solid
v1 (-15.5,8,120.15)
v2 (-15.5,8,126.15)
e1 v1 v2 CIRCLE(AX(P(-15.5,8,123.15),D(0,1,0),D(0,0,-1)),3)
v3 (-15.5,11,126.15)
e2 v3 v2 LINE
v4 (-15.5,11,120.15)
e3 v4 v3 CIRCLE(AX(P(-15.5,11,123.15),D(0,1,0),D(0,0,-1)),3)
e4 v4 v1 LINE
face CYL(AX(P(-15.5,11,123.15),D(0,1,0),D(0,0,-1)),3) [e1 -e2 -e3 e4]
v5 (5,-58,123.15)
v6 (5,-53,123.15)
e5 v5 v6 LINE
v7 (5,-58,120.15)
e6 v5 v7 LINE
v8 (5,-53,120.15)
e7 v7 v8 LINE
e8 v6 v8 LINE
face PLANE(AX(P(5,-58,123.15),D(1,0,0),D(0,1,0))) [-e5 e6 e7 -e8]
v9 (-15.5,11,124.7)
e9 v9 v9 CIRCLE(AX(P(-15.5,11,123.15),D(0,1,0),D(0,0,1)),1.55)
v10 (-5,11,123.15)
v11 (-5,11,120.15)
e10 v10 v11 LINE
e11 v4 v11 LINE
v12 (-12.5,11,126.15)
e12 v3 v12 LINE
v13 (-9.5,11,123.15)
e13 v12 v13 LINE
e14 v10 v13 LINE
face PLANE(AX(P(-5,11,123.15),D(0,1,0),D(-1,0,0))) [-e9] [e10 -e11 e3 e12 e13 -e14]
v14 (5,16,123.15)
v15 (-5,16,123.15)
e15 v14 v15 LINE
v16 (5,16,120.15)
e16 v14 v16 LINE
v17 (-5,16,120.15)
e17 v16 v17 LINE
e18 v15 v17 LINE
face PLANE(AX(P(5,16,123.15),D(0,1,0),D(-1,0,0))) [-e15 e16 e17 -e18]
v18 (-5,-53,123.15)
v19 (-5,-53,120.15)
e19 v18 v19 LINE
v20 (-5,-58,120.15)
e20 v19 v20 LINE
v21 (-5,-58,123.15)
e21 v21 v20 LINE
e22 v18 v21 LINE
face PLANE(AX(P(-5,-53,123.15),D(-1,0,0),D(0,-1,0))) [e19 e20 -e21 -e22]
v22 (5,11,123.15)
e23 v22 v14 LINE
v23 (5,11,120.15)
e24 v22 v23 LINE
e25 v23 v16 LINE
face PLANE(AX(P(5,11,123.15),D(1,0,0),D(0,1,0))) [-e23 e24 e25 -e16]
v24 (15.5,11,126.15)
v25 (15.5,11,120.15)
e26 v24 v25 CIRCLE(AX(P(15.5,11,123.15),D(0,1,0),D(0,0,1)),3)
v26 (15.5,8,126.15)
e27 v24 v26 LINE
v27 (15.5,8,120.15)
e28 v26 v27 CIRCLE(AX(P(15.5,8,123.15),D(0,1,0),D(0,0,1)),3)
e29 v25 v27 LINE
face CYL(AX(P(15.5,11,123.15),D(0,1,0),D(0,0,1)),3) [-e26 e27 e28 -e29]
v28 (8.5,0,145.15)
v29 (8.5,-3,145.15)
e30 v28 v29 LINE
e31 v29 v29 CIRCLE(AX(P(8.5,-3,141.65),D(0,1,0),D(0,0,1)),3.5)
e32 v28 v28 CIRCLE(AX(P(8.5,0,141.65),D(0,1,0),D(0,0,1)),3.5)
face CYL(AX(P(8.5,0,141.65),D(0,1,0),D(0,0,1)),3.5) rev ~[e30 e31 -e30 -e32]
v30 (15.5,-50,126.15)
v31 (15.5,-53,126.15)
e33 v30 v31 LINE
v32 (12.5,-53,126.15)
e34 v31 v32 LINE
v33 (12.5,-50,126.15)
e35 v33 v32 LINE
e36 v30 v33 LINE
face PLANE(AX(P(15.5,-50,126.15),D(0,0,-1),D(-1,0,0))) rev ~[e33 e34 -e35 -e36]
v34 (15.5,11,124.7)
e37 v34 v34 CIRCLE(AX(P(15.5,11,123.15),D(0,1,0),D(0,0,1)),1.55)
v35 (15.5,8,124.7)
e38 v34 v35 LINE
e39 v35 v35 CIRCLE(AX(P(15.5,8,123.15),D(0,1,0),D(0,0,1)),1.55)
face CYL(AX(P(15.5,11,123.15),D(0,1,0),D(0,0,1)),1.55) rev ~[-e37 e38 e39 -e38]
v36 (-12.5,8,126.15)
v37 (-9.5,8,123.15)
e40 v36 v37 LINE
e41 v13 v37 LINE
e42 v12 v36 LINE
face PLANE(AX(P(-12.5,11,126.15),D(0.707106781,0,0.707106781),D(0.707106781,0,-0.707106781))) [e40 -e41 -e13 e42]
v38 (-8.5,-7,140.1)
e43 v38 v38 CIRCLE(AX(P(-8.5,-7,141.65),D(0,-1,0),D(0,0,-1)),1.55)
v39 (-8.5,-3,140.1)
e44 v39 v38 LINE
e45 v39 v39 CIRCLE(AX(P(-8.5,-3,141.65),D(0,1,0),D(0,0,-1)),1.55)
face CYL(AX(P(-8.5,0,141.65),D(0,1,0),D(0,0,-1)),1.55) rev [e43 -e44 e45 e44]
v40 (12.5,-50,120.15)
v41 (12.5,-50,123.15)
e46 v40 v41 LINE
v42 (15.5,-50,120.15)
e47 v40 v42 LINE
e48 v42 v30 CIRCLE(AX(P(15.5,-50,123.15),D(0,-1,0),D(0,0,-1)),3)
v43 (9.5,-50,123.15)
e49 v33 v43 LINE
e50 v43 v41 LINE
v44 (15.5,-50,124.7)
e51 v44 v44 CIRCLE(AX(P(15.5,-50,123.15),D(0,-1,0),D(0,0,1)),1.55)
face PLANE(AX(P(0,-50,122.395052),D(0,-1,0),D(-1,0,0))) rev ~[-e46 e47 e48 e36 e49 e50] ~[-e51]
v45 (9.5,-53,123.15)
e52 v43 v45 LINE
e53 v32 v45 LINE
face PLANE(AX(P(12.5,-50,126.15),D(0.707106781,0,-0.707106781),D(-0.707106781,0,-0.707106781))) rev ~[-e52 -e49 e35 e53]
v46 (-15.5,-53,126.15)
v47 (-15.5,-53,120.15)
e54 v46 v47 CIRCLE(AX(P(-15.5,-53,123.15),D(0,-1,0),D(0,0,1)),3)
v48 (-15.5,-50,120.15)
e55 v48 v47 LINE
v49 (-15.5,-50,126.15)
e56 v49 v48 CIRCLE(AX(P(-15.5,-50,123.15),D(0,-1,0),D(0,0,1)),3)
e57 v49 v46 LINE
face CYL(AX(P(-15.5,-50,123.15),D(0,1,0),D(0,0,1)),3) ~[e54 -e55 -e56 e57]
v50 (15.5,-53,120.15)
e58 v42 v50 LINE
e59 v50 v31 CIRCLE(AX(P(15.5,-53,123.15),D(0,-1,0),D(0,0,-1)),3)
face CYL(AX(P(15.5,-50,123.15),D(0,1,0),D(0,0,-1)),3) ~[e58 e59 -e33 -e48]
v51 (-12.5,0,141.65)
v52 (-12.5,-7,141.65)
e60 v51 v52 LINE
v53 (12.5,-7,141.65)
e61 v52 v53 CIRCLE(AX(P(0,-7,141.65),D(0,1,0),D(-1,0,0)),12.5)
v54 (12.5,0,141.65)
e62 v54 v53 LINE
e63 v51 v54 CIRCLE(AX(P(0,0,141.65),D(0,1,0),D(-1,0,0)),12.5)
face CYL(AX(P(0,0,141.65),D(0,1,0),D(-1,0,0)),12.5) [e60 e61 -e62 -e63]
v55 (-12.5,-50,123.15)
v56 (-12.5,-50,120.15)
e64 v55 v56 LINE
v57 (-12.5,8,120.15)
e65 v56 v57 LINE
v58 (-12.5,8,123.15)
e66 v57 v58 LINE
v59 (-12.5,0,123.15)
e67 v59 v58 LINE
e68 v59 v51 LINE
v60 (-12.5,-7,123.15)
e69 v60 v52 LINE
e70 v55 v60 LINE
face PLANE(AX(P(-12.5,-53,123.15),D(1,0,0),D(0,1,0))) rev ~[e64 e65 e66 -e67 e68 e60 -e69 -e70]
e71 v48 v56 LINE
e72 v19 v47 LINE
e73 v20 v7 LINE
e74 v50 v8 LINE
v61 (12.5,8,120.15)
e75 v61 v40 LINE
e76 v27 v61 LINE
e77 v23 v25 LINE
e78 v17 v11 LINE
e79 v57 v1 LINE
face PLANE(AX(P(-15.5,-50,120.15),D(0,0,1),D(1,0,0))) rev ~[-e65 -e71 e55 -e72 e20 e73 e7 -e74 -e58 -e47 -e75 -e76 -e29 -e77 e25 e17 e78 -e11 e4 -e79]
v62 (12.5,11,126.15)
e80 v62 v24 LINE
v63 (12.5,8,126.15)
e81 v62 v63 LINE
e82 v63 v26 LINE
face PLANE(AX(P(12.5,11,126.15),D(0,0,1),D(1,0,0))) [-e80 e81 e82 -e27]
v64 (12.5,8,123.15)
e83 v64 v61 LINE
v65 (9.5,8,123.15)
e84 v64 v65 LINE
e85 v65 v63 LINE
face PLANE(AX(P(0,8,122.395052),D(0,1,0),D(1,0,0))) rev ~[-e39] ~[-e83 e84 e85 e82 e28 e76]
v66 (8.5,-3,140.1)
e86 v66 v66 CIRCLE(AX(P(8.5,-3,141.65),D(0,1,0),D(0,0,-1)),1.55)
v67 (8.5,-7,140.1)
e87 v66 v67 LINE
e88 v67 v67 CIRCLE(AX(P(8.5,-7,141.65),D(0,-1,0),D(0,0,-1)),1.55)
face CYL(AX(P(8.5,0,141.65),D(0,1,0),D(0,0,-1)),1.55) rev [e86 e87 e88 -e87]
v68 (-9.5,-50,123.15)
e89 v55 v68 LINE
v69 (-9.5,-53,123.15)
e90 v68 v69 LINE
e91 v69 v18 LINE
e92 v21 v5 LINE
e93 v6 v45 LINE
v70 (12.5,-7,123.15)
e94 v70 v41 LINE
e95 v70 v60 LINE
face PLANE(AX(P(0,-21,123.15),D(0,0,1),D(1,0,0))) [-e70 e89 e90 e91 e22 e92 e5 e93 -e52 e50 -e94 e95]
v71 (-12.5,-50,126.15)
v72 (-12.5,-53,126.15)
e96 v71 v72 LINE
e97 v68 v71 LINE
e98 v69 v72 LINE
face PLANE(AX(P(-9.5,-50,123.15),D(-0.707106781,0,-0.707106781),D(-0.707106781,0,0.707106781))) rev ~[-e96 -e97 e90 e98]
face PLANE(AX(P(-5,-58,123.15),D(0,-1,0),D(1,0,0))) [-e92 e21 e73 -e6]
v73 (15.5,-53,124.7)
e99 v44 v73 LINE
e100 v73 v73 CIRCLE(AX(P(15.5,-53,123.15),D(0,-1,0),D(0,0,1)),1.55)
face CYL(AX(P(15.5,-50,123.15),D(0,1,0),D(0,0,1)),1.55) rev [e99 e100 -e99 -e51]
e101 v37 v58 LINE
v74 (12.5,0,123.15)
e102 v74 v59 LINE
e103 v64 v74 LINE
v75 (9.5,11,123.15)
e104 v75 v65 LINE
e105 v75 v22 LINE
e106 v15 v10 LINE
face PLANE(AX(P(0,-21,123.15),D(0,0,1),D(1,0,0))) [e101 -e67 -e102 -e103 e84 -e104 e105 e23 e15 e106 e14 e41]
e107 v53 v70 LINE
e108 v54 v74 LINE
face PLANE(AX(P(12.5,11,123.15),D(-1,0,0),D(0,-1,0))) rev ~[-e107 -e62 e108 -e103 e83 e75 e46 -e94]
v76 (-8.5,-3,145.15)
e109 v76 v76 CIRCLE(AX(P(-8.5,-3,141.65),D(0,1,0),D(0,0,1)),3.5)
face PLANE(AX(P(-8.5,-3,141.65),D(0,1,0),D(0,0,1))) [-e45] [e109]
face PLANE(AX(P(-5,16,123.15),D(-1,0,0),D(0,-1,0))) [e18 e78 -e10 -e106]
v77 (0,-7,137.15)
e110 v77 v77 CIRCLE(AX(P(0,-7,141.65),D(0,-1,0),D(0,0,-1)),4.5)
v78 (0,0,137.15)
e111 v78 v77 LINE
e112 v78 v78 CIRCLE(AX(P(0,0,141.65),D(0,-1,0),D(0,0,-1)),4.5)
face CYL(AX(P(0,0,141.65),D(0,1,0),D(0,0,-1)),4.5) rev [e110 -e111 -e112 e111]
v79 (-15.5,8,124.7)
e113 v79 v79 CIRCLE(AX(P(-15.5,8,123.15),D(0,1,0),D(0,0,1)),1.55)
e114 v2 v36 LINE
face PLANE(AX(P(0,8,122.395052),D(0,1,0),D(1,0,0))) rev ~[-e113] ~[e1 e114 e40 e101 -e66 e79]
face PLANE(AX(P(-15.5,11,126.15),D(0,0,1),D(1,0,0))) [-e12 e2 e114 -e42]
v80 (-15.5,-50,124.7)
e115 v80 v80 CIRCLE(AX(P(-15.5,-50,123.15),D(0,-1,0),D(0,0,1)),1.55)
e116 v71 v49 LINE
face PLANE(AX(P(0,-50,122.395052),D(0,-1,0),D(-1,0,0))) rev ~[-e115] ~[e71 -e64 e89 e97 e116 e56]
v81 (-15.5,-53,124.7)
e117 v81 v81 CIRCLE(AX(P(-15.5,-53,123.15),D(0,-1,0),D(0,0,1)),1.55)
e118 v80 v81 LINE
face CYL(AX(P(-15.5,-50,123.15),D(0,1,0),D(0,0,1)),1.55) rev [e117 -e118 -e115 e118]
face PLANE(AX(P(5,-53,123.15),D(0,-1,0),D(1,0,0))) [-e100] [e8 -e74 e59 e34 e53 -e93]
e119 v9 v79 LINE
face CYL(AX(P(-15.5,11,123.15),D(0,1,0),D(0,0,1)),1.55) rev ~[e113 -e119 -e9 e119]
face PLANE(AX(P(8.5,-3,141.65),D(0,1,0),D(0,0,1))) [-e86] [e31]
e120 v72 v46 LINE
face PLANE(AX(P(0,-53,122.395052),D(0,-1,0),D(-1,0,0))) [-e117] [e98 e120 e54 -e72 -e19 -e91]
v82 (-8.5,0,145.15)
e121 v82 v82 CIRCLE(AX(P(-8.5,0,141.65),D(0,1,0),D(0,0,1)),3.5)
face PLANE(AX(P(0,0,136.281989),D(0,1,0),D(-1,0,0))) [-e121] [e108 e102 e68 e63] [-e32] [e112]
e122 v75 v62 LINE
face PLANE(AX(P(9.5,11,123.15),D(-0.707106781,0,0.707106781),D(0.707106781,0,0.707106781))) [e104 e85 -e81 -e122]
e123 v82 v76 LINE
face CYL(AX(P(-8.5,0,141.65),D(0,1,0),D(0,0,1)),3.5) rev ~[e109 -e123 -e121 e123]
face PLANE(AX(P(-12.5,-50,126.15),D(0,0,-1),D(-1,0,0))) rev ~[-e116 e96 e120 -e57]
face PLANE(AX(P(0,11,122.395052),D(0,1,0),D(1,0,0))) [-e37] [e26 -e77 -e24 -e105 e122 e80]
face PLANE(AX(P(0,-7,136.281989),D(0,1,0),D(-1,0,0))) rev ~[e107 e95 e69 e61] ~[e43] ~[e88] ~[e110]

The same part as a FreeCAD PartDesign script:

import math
import FreeCAD as App
import Part
import Sketcher

doc = App.newDocument("Part")
params = doc.addObject("Spreadsheet::Sheet", "Params")
for row, (alias, value) in enumerate([
    ("sketch1_diameter", "9 mm"),
    ("sketch1_diameter2", "3.1 mm"),
    ("sketch1_radius", "12.5 mm"),
    ("sketch1_height", "18.5 mm"),
    ("pad1_length", "7 mm"),
    ("sketch2_width", "10 mm"),
    ("sketch2_height", "64 mm"),
    ("sketch2_height2", "5 mm"),
    ("sketch2_width2", "7.5 mm"),
    ("pad2_length", "3 mm"),
    ("sketch3_diameter", "7 mm"),
    ("pocket1_length", "3 mm"),
    ("sketch4_radius", "3 mm"),
    ("sketch4_diameter", "3.1 mm"),
    ("sketch4_width", "31 mm"),
    ("sketch4_width2", "3 mm"),
    ("pad3_length", "3 mm"),
    ("sketch5_radius", "3 mm"),
    ("sketch5_diameter", "3.1 mm"),
    ("sketch5_width", "31 mm"),
    ("sketch5_width2", "3 mm"),
    ("pad4_length", "3 mm"),
], start=1):
    params.set(f"A{row}", alias)
    params.set(f"B{row}", "=" + value)
    params.setAlias(f"B{row}", alias)

body = doc.addObject("PartDesign::Body", "Body")

# Sketch on XZ plane
sketch1 = body.newObject("Sketcher::SketchObject", "Sketch")
sketch1.AttachmentSupport = (doc.getObject("XZ_Plane"), [""])
sketch1.MapMode = "FlatFace"
sketch1.addGeometry([
    Part.LineSegment(App.Vector(12.5, 123.2, 0), App.Vector(12.5, 141.7, 0)),  # 0
    Part.ArcOfCircle(Part.Circle(App.Vector(0, 141.7, 0), App.Vector(0, 0, 1), 12.5), math.radians(0), math.radians(180)),  # 1
    Part.LineSegment(App.Vector(-12.5, 141.7, 0), App.Vector(-12.5, 123.2, 0)),  # 2
    Part.LineSegment(App.Vector(-12.5, 123.2, 0), App.Vector(12.5, 123.2, 0)),  # 3
    Part.Circle(App.Vector(8.5, 141.7, 0), App.Vector(0, 0, 1), 1.6),  # 4
    Part.Circle(App.Vector(0, 141.7, 0), App.Vector(0, 0, 1), 4.5),  # 5
    Part.Circle(App.Vector(-8.5, 141.7, 0), App.Vector(0, 0, 1), 1.6),  # 6
], False)
sketch1.addConstraint([
    Sketcher.Constraint("Tangent", 0, 2, 1, 1),
    Sketcher.Constraint("Tangent", 1, 2, 2, 1),
    Sketcher.Constraint("Coincident", 2, 2, 3, 1),
    Sketcher.Constraint("Coincident", 3, 2, 0, 1),
    Sketcher.Constraint("Vertical", 0),
    Sketcher.Constraint("Vertical", 2),
    Sketcher.Constraint("Horizontal", 3),
    Sketcher.Constraint("Coincident", 5, 3, 1, 3),
    Sketcher.Constraint("Equal", 4, 6),
    Sketcher.Constraint("Symmetric", 4, 3, 6, 3, -2),
    Sketcher.Constraint("PointOnObject", 1, 3, -2),
    Sketcher.Constraint("Horizontal", 1, 3, 4, 3),
    Sketcher.Constraint("Diameter", 5, 9.0),
    Sketcher.Constraint("Diameter", 4, 3.1),
    Sketcher.Constraint("Radius", 1, 12.5),
    Sketcher.Constraint("DistanceY", 0, 1, 0, 2, 18.5),
    Sketcher.Constraint("DistanceX", 6, 3, 4, 3, 17.0),
    Sketcher.Constraint("DistanceY", -1, 1, 1, 3, 141.65),
])
sketch1.setExpression("Constraints[12]", "Params.sketch1_diameter")
sketch1.setExpression("Constraints[13]", "Params.sketch1_diameter2")
sketch1.setExpression("Constraints[14]", "Params.sketch1_radius")
sketch1.setExpression("Constraints[15]", "Params.sketch1_height")
pad1 = body.newObject("PartDesign::Pad", "Pad")
pad1.Profile = sketch1
pad1.setExpression("Length", "Params.pad1_length")

# Sketch on XY plane
sketch2 = body.newObject("Sketcher::SketchObject", "Sketch001")
sketch2.AttachmentSupport = (doc.getObject("XY_Plane"), [""])
sketch2.MapMode = "FlatFace"
sketch2.AttachmentOffset = App.Placement(App.Vector(0, 0, 123.15), App.Rotation())
sketch2.addGeometry([
    Part.LineSegment(App.Vector(12, 11, 0), App.Vector(12, -53, 0)),  # 0
    Part.LineSegment(App.Vector(12, -53, 0), App.Vector(5, -53, 0)),  # 1
    Part.LineSegment(App.Vector(5, -53, 0), App.Vector(5, -58, 0)),  # 2
    Part.LineSegment(App.Vector(5, -58, 0), App.Vector(-5, -58, 0)),  # 3
    Part.LineSegment(App.Vector(-5, -58, 0), App.Vector(-5, -53, 0)),  # 4
    Part.LineSegment(App.Vector(-5, -53, 0), App.Vector(-12, -53, 0)),  # 5
    Part.LineSegment(App.Vector(-12, -53, 0), App.Vector(-12, 11, 0)),  # 6
    Part.LineSegment(App.Vector(-12, 11, 0), App.Vector(-5, 11, 0)),  # 7
    Part.LineSegment(App.Vector(-5, 11, 0), App.Vector(-5, 16, 0)),  # 8
    Part.LineSegment(App.Vector(-5, 16, 0), App.Vector(5, 16, 0)),  # 9
    Part.LineSegment(App.Vector(5, 16, 0), App.Vector(5, 11, 0)),  # 10
    Part.LineSegment(App.Vector(5, 11, 0), App.Vector(12, 11, 0)),  # 11
], False)
sketch2.addConstraint([
    Sketcher.Constraint("Coincident", 0, 2, 1, 1),
    Sketcher.Constraint("Coincident", 1, 2, 2, 1),
    Sketcher.Constraint("Coincident", 2, 2, 3, 1),
    Sketcher.Constraint("Coincident", 3, 2, 4, 1),
    Sketcher.Constraint("Coincident", 4, 2, 5, 1),
    Sketcher.Constraint("Coincident", 5, 2, 6, 1),
    Sketcher.Constraint("Coincident", 6, 2, 7, 1),
    Sketcher.Constraint("Coincident", 7, 2, 8, 1),
    Sketcher.Constraint("Coincident", 8, 2, 9, 1),
    Sketcher.Constraint("Coincident", 9, 2, 10, 1),
    Sketcher.Constraint("Coincident", 10, 2, 11, 1),
    Sketcher.Constraint("Coincident", 11, 2, 0, 1),
    Sketcher.Constraint("Vertical", 0),
    Sketcher.Constraint("Horizontal", 1),
    Sketcher.Constraint("Vertical", 2),
    Sketcher.Constraint("Horizontal", 3),
    Sketcher.Constraint("Vertical", 4),
    Sketcher.Constraint("Horizontal", 5),
    Sketcher.Constraint("Vertical", 6),
    Sketcher.Constraint("Horizontal", 7),
    Sketcher.Constraint("Vertical", 8),
    Sketcher.Constraint("Horizontal", 9),
    Sketcher.Constraint("Vertical", 10),
    Sketcher.Constraint("Horizontal", 11),
    Sketcher.Constraint("Symmetric", 1, 2, 4, 2, -2),
    Sketcher.Constraint("Symmetric", 7, 2, 10, 2, -2),
    Sketcher.Constraint("Vertical", 4, 2, 7, 2),
    Sketcher.Constraint("Equal", 1, 5),
    Sketcher.Constraint("Equal", 4, 8),
    Sketcher.Constraint("DistanceX", 3, 2, 3, 1, 10.0),
    Sketcher.Constraint("DistanceY", 0, 2, 0, 1, 64.0),
    Sketcher.Constraint("DistanceY", 2, 2, 2, 1, 5.0),
    Sketcher.Constraint("DistanceX", 1, 2, 1, 1, 7.5),
    Sketcher.Constraint("DistanceY", 0, 2, -1, 1, 53.0),
])
sketch2.setExpression("Constraints[29]", "Params.sketch2_width")
sketch2.setExpression("Constraints[30]", "Params.sketch2_height")
sketch2.setExpression("Constraints[31]", "Params.sketch2_height2")
sketch2.setExpression("Constraints[32]", "Params.sketch2_width2")
pad2 = body.newObject("PartDesign::Pad", "Pad001")
pad2.Profile = sketch2
pad2.setExpression("Length", "Params.pad2_length")
pad2.Reversed = True

# Sketch on XZ plane
sketch3 = body.newObject("Sketcher::SketchObject", "Sketch002")
sketch3.AttachmentSupport = (doc.getObject("XZ_Plane"), [""])
sketch3.MapMode = "FlatFace"
sketch3.addGeometry([
    Part.Circle(App.Vector(-8.5, 141.7, 0), App.Vector(0, 0, 1), 3.5),
    Part.Circle(App.Vector(8.5, 141.7, 0), App.Vector(0, 0, 1), 3.5),
], False)
sketch3.addConstraint([
    Sketcher.Constraint("Equal", 0, 1),
    Sketcher.Constraint("Symmetric", 0, 3, 1, 3, -2),
    Sketcher.Constraint("Diameter", 0, 7.0),
    Sketcher.Constraint("DistanceX", 0, 3, 1, 3, 17.0),
    Sketcher.Constraint("DistanceY", -1, 1, 0, 3, 141.65),
])
sketch3.setExpression("Constraints[2]", "Params.sketch3_diameter")
pocket1 = body.newObject("PartDesign::Pocket", "Pocket")
pocket1.Profile = sketch3
pocket1.setExpression("Length", "Params.pocket1_length")
pocket1.Reversed = True

# Sketch on XZ plane
sketch4 = body.newObject("Sketcher::SketchObject", "Sketch003")
sketch4.AttachmentSupport = (doc.getObject("XZ_Plane"), [""])
sketch4.MapMode = "FlatFace"
sketch4.AttachmentOffset = App.Placement(App.Vector(0, 0, -11), App.Rotation())
sketch4.addGeometry([
    Part.LineSegment(App.Vector(15.5, 120.2, 0), App.Vector(-15.5, 120.2, 0)),  # 0
    Part.ArcOfCircle(Part.Circle(App.Vector(-15.5, 123.2, 0), App.Vector(0, 0, 1), 3), math.radians(90), math.radians(270)),  # 1
    Part.LineSegment(App.Vector(-15.5, 126.2, 0), App.Vector(-12.5, 126.2, 0)),  # 2
    Part.LineSegment(App.Vector(-12.5, 126.2, 0), App.Vector(-9.5, 123.2, 0)),  # 3
    Part.LineSegment(App.Vector(-9.5, 123.2, 0), App.Vector(9.5, 123.2, 0)),  # 4
    Part.LineSegment(App.Vector(9.5, 123.2, 0), App.Vector(12.5, 126.2, 0)),  # 5
    Part.LineSegment(App.Vector(12.5, 126.2, 0), App.Vector(15.5, 126.2, 0)),  # 6
    Part.ArcOfCircle(Part.Circle(App.Vector(15.5, 123.2, 0), App.Vector(0, 0, 1), 3), math.radians(-90), math.radians(90)),  # 7
    Part.Circle(App.Vector(-15.5, 123.2, 0), App.Vector(0, 0, 1), 1.6),  # 8
    Part.Circle(App.Vector(15.5, 123.2, 0), App.Vector(0, 0, 1), 1.6),  # 9
], False)
sketch4.addConstraint([
    Sketcher.Constraint("Tangent", 0, 2, 1, 2),
    Sketcher.Constraint("Tangent", 1, 1, 2, 1),
    Sketcher.Constraint("Coincident", 2, 2, 3, 1),
    Sketcher.Constraint("Coincident", 3, 2, 4, 1),
    Sketcher.Constraint("Coincident", 4, 2, 5, 1),
    Sketcher.Constraint("Coincident", 5, 2, 6, 1),
    Sketcher.Constraint("Tangent", 6, 2, 7, 2),
    Sketcher.Constraint("Tangent", 7, 1, 0, 1),
    Sketcher.Constraint("Horizontal", 0),
    Sketcher.Constraint("Horizontal", 2),
    Sketcher.Constraint("Horizontal", 4),
    Sketcher.Constraint("Horizontal", 6),
    Sketcher.Constraint("Coincident", 8, 3, 1, 3),
    Sketcher.Constraint("Coincident", 9, 3, 7, 3),
    Sketcher.Constraint("Equal", 1, 7),
    Sketcher.Constraint("Equal", 8, 9),
    Sketcher.Constraint("Perpendicular", 3, 5),
    Sketcher.Constraint("Horizontal", 9, 3, 3, 2),
    Sketcher.Constraint("Equal", 2, 6),
    Sketcher.Constraint("Equal", 3, 5),
    Sketcher.Constraint("Radius", 1, 3.0),
    Sketcher.Constraint("Diameter", 8, 3.1),
    Sketcher.Constraint("DistanceX", 0, 2, 0, 1, 31.0),
    Sketcher.Constraint("DistanceX", 2, 1, 2, 2, 3.0),
    Sketcher.Constraint("DistanceX", 1, 3, -1, 1, 15.5),
    Sketcher.Constraint("DistanceY", -1, 1, 1, 3, 123.15),
])
sketch4.setExpression("Constraints[20]", "Params.sketch4_radius")
sketch4.setExpression("Constraints[21]", "Params.sketch4_diameter")
sketch4.setExpression("Constraints[22]", "Params.sketch4_width")
sketch4.setExpression("Constraints[23]", "Params.sketch4_width2")
pad3 = body.newObject("PartDesign::Pad", "Pad002")
pad3.Profile = sketch4
pad3.setExpression("Length", "Params.pad3_length")

# Sketch on XZ plane
sketch5 = body.newObject("Sketcher::SketchObject", "Sketch004")
sketch5.AttachmentSupport = (doc.getObject("XZ_Plane"), [""])
sketch5.MapMode = "FlatFace"
sketch5.AttachmentOffset = App.Placement(App.Vector(0, 0, 50), App.Rotation())
sketch5.addGeometry([
    Part.LineSegment(App.Vector(-15.5, 120.2, 0), App.Vector(15.5, 120.2, 0)),  # 0
    Part.ArcOfCircle(Part.Circle(App.Vector(15.5, 123.2, 0), App.Vector(0, 0, 1), 3), math.radians(-90), math.radians(90)),  # 1
    Part.LineSegment(App.Vector(15.5, 126.2, 0), App.Vector(12.5, 126.2, 0)),  # 2
    Part.LineSegment(App.Vector(12.5, 126.2, 0), App.Vector(9.5, 123.2, 0)),  # 3
    Part.LineSegment(App.Vector(9.5, 123.2, 0), App.Vector(-9.5, 123.2, 0)),  # 4
    Part.LineSegment(App.Vector(-9.5, 123.2, 0), App.Vector(-12.5, 126.2, 0)),  # 5
    Part.LineSegment(App.Vector(-12.5, 126.2, 0), App.Vector(-15.5, 126.2, 0)),  # 6
    Part.ArcOfCircle(Part.Circle(App.Vector(-15.5, 123.2, 0), App.Vector(0, 0, 1), 3), math.radians(90), math.radians(270)),  # 7
    Part.Circle(App.Vector(15.5, 123.2, 0), App.Vector(0, 0, 1), 1.6),  # 8
    Part.Circle(App.Vector(-15.5, 123.2, 0), App.Vector(0, 0, 1), 1.6),  # 9
], False)
sketch5.addConstraint([
    Sketcher.Constraint("Tangent", 0, 2, 1, 1),
    Sketcher.Constraint("Tangent", 1, 2, 2, 1),
    Sketcher.Constraint("Coincident", 2, 2, 3, 1),
    Sketcher.Constraint("Coincident", 3, 2, 4, 1),
    Sketcher.Constraint("Coincident", 4, 2, 5, 1),
    Sketcher.Constraint("Coincident", 5, 2, 6, 1),
    Sketcher.Constraint("Tangent", 6, 2, 7, 1),
    Sketcher.Constraint("Tangent", 7, 2, 0, 1),
    Sketcher.Constraint("Horizontal", 0),
    Sketcher.Constraint("Horizontal", 2),
    Sketcher.Constraint("Horizontal", 4),
    Sketcher.Constraint("Horizontal", 6),
    Sketcher.Constraint("Coincident", 8, 3, 1, 3),
    Sketcher.Constraint("Coincident", 9, 3, 7, 3),
    Sketcher.Constraint("Equal", 1, 7),
    Sketcher.Constraint("Equal", 8, 9),
    Sketcher.Constraint("Perpendicular", 3, 5),
    Sketcher.Constraint("Horizontal", 9, 3, 3, 2),
    Sketcher.Constraint("Equal", 2, 6),
    Sketcher.Constraint("Equal", 3, 5),
    Sketcher.Constraint("Radius", 1, 3.0),
    Sketcher.Constraint("Diameter", 8, 3.1),
    Sketcher.Constraint("DistanceX", 0, 1, 0, 2, 31.0),
    Sketcher.Constraint("DistanceX", 2, 2, 2, 1, 3.0),
    Sketcher.Constraint("DistanceX", -1, 1, 1, 3, 15.5),
    Sketcher.Constraint("DistanceY", -1, 1, 1, 3, 123.15),
])
sketch5.setExpression("Constraints[20]", "Params.sketch5_radius")
sketch5.setExpression("Constraints[21]", "Params.sketch5_diameter")
sketch5.setExpression("Constraints[22]", "Params.sketch5_width")
sketch5.setExpression("Constraints[23]", "Params.sketch5_width2")
pad4 = body.newObject("PartDesign::Pad", "Pad003")
pad4.Profile = sketch5
pad4.setExpression("Length", "Params.pad4_length")

doc.recompute()
